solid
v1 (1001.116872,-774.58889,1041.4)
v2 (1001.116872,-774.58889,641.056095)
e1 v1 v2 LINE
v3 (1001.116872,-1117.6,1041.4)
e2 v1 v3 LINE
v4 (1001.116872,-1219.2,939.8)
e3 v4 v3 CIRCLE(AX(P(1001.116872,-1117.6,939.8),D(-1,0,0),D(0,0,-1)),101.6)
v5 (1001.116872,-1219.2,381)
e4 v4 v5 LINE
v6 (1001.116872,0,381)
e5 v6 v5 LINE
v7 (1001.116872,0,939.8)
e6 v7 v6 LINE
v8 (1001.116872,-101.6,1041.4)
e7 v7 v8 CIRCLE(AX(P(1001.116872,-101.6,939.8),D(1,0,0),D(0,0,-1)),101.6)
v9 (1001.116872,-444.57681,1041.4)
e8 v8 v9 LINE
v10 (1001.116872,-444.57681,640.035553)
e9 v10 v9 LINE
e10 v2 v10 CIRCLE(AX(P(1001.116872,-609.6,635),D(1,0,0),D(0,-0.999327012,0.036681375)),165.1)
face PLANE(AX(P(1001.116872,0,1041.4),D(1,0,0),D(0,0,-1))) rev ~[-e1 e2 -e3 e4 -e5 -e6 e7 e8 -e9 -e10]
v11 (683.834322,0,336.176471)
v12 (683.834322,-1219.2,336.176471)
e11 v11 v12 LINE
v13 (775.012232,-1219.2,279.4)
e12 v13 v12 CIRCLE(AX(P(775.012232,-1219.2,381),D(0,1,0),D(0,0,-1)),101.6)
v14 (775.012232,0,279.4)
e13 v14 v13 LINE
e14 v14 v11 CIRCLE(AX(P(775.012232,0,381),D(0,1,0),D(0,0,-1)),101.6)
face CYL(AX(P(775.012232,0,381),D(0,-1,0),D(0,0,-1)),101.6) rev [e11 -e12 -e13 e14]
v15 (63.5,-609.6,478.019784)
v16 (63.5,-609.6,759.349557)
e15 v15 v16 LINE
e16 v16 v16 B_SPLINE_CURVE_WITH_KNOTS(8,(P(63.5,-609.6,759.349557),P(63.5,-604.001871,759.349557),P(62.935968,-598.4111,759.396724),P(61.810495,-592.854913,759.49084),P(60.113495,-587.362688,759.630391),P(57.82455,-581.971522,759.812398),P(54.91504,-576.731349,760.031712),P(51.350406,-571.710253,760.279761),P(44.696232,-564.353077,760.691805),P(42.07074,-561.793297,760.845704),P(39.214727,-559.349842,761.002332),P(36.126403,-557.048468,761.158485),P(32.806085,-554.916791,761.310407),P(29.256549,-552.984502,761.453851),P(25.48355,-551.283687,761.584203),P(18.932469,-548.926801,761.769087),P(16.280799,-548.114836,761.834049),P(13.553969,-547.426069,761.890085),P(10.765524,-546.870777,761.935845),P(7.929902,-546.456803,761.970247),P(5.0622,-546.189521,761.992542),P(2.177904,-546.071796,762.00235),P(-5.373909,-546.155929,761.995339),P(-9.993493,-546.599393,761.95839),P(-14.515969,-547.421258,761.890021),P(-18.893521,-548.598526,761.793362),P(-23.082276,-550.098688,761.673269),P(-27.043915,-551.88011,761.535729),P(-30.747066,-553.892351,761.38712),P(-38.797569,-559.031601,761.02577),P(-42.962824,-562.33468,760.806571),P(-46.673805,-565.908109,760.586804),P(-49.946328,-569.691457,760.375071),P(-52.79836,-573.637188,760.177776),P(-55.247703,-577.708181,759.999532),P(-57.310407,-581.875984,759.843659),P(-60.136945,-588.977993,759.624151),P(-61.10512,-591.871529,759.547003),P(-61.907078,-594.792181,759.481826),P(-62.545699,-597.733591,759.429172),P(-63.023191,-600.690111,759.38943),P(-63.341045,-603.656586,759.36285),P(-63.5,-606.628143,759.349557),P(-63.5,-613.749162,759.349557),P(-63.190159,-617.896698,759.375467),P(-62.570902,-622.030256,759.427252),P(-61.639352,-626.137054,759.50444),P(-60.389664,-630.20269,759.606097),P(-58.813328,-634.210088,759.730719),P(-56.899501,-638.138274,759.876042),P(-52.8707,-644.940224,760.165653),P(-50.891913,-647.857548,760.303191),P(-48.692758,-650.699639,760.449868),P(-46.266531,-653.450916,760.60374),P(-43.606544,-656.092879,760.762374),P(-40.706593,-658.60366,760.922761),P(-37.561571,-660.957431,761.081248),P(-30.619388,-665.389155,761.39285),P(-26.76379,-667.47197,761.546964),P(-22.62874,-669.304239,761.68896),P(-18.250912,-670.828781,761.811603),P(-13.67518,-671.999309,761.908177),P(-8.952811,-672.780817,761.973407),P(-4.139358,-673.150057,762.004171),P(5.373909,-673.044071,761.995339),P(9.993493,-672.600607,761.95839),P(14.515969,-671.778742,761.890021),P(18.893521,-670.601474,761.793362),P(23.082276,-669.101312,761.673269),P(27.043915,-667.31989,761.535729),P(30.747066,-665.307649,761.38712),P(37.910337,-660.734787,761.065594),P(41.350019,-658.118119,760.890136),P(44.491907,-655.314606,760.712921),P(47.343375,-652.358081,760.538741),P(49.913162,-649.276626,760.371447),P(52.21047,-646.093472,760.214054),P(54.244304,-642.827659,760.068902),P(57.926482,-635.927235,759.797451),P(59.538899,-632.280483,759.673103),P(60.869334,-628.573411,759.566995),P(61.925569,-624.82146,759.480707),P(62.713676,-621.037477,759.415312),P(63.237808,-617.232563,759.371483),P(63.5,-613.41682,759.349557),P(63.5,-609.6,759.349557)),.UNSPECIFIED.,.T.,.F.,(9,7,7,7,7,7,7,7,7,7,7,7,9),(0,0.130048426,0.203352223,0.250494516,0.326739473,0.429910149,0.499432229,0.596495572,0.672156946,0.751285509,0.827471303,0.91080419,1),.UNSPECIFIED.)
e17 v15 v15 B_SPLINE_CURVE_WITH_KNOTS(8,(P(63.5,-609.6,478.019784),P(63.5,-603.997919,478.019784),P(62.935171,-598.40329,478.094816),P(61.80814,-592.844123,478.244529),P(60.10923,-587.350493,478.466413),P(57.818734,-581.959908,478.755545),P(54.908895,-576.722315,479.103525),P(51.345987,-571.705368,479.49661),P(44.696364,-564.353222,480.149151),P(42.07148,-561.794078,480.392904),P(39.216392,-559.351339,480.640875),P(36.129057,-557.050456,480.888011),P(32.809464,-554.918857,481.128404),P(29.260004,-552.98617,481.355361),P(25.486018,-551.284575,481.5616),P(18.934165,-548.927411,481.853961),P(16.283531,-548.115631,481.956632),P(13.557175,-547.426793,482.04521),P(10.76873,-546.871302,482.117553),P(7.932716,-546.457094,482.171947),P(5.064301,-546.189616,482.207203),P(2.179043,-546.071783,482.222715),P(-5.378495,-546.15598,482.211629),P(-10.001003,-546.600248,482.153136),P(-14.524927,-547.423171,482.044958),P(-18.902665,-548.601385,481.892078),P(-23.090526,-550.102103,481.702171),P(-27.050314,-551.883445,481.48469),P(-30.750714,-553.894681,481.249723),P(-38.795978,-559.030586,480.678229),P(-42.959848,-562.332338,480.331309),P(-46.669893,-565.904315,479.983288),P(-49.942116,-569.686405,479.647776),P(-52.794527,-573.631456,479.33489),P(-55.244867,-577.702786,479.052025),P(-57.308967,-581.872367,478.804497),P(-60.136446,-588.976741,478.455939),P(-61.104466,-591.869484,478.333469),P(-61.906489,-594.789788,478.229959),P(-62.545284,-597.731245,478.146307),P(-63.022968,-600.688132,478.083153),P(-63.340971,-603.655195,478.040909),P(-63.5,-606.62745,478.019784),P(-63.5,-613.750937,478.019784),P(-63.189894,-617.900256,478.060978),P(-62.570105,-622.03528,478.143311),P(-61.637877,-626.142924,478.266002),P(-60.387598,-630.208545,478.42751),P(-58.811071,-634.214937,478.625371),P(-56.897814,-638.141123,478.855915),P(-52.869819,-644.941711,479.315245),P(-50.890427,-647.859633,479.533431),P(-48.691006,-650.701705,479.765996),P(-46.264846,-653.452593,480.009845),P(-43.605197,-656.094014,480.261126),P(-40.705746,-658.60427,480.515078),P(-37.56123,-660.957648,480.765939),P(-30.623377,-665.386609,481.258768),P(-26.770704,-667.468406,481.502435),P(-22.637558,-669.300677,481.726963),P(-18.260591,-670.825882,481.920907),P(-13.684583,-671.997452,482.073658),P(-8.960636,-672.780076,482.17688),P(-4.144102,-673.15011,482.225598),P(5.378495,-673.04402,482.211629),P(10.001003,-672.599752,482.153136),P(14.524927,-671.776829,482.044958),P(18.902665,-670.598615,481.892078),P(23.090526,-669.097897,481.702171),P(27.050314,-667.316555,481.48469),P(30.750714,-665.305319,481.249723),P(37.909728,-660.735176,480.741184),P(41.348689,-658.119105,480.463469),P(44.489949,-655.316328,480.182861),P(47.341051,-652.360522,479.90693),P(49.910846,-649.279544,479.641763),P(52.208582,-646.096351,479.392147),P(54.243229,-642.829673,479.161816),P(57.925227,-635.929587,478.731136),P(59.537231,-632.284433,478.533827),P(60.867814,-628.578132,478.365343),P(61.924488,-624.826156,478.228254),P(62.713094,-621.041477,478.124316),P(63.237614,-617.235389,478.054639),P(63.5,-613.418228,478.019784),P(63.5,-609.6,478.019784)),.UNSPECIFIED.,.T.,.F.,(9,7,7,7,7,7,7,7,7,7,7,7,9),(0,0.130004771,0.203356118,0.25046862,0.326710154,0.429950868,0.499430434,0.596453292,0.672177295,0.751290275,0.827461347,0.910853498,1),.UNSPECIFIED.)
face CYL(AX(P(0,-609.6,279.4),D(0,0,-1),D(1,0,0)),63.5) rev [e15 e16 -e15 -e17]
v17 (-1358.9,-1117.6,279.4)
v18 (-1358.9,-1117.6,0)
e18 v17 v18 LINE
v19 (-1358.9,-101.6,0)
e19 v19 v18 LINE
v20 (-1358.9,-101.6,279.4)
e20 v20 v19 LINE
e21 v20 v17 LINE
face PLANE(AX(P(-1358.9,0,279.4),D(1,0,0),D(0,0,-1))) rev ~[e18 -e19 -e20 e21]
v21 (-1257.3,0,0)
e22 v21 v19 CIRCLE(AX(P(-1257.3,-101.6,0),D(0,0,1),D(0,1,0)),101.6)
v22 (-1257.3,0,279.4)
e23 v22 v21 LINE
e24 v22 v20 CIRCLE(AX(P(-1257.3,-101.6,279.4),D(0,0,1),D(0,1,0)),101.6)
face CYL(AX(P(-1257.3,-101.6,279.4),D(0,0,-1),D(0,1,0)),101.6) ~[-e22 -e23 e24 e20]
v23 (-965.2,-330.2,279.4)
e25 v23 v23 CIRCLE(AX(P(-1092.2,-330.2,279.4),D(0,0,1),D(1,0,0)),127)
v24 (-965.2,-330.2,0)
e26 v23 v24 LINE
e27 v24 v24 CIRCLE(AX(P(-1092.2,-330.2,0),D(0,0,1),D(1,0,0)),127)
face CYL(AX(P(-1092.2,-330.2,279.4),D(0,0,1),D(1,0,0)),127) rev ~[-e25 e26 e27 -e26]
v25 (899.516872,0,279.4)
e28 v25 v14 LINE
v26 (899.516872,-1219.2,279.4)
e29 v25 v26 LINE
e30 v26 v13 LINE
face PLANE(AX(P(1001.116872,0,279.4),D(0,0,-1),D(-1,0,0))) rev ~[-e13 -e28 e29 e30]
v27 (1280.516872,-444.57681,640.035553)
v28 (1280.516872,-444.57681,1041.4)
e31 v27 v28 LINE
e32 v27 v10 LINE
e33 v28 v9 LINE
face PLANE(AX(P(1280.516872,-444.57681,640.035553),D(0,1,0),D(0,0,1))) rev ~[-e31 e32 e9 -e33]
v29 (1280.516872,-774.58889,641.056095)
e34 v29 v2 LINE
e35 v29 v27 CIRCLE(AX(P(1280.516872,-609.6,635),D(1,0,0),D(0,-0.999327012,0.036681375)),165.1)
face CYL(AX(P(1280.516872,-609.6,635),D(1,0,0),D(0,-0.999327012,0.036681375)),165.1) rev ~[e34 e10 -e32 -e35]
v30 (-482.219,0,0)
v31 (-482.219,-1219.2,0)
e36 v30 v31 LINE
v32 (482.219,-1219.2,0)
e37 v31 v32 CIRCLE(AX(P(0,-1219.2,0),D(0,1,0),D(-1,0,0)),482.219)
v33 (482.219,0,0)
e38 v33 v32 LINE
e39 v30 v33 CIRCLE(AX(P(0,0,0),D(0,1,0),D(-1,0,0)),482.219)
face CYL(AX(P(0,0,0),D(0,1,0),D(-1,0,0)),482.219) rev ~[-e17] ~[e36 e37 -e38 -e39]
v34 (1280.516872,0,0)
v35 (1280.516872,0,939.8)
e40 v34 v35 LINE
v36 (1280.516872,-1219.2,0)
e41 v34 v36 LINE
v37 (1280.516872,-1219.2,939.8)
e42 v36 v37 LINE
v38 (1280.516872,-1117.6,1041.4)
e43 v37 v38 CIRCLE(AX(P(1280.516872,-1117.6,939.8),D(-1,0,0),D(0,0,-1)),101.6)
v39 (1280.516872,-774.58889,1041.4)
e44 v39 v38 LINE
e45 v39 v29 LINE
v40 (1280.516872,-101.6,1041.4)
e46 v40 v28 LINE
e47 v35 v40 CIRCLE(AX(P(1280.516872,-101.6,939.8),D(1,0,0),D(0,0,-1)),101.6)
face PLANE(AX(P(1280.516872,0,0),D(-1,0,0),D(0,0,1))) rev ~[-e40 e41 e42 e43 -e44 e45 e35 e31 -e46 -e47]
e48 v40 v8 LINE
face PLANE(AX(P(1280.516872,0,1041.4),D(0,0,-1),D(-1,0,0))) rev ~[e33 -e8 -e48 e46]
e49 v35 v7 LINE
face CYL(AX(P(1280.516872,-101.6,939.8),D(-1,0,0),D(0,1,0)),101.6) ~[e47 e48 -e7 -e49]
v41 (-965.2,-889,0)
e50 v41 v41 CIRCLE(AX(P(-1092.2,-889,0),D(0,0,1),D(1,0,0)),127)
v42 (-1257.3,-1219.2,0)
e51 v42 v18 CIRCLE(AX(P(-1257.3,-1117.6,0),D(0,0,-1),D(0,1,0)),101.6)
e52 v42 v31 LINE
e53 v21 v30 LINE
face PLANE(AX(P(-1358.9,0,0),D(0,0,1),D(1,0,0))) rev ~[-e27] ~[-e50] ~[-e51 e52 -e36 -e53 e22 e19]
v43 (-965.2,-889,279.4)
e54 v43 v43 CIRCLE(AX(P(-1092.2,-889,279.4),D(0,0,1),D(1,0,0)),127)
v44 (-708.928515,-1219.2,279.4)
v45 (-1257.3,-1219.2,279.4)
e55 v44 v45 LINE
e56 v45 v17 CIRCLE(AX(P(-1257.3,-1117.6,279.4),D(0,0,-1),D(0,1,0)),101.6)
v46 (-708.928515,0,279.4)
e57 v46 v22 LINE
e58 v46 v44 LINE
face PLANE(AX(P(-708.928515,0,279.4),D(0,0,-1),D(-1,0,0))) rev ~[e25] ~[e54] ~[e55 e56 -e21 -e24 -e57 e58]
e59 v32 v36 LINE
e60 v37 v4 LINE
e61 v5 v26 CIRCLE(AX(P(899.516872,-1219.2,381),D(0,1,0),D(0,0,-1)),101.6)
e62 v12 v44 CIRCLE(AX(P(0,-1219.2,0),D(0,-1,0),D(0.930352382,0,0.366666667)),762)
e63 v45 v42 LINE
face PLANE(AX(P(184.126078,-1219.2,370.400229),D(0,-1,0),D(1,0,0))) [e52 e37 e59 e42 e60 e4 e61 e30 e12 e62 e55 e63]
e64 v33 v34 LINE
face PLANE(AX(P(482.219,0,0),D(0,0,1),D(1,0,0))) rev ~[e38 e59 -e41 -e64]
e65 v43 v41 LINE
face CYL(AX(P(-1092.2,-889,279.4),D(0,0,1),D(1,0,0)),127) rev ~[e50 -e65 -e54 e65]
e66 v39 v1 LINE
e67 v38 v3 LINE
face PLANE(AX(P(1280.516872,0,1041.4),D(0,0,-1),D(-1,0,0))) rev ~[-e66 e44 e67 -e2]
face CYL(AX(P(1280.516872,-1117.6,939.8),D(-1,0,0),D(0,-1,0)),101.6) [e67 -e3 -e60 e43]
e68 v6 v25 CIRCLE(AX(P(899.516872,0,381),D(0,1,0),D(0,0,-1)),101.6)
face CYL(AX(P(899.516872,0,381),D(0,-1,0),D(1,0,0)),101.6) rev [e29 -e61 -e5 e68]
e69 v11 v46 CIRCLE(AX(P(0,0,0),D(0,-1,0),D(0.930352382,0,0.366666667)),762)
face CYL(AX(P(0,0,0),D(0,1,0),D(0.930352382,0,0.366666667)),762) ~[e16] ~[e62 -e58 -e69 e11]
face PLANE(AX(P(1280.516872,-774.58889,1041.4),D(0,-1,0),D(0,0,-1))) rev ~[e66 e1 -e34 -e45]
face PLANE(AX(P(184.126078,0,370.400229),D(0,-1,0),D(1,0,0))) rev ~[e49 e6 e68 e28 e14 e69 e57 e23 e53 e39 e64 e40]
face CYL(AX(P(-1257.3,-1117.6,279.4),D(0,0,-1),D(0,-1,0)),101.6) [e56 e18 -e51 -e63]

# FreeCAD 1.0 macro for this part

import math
import FreeCAD as App
import Part
import Sketcher
Q = App.Units.Quantity


def edges_at(feature, points):
    """Names of the edges that pass closest to the given points."""
    edges = feature.Shape.Edges
    near = lambda p: min(range(len(edges)), key=lambda i: edges[i].distToShape(Part.Vertex(*p))[0])
    return sorted({f"Edge{near(p) + 1}" for p in points})

doc = App.newDocument("Part")
body = doc.addObject("PartDesign::Body", "Body")

sketch1 = doc.addObject("Sketcher::SketchObject", "Sketch")
body.addObject(sketch1)
sketch1.AttachmentSupport = (doc.XZ_Plane, [""])
sketch1.MapMode = "FlatFace"
sketch1.addGeometry(Part.ArcOfCircle(Part.Circle(App.Vector(0, 0, 0), App.Vector(0, 0, 1), 482), math.radians(0), math.radians(180)), False)
sketch1.addGeometry(Part.LineSegment(App.Vector(482, 0, 0), App.Vector(1281, 0, 0)), False)
sketch1.addGeometry(Part.LineSegment(App.Vector(1281, 0, 0), App.Vector(1281, 1041, 0)), False)
sketch1.addGeometry(Part.LineSegment(App.Vector(1281, 1041, 0), App.Vector(1001, 1041, 0)), False)
sketch1.addGeometry(Part.LineSegment(App.Vector(1001, 1041, 0), App.Vector(1001, 279, 0)), False)
sketch1.addGeometry(Part.LineSegment(App.Vector(1001, 279, 0), App.Vector(709, 279, 0)), False)
sketch1.addGeometry(Part.ArcOfCircle(Part.Circle(App.Vector(0, 0, 0), App.Vector(0, 0, 1), 762), math.radians(22), math.radians(158)), False)
sketch1.addGeometry(Part.LineSegment(App.Vector(-709, 279, 0), App.Vector(-1359, 279, 0)), False)
sketch1.addGeometry(Part.LineSegment(App.Vector(-1359, 279, 0), App.Vector(-1359, 0, 0)), False)
sketch1.addGeometry(Part.LineSegment(App.Vector(-1359, 0, 0), App.Vector(-482, 0, 0)), False)
sketch1.addConstraint(Sketcher.Constraint("Coincident", 0, 1, 1, 1))
sketch1.addConstraint(Sketcher.Constraint("Coincident", 1, 2, 2, 1))
sketch1.addConstraint(Sketcher.Constraint("Coincident", 2, 2, 3, 1))
sketch1.addConstraint(Sketcher.Constraint("Coincident", 3, 2, 4, 1))
sketch1.addConstraint(Sketcher.Constraint("Coincident", 4, 2, 5, 1))
sketch1.addConstraint(Sketcher.Constraint("Coincident", 5, 2, 6, 1))
sketch1.addConstraint(Sketcher.Constraint("Coincident", 6, 2, 7, 1))
sketch1.addConstraint(Sketcher.Constraint("Coincident", 7, 2, 8, 1))
sketch1.addConstraint(Sketcher.Constraint("Coincident", 8, 2, 9, 1))
sketch1.addConstraint(Sketcher.Constraint("Coincident", 9, 2, 0, 2))
sketch1.addConstraint(Sketcher.Constraint("Horizontal", 1))
sketch1.addConstraint(Sketcher.Constraint("Vertical", 2))
sketch1.addConstraint(Sketcher.Constraint("Horizontal", 3))
sketch1.addConstraint(Sketcher.Constraint("Vertical", 4))
sketch1.addConstraint(Sketcher.Constraint("Horizontal", 5))
sketch1.addConstraint(Sketcher.Constraint("Horizontal", 7))
sketch1.addConstraint(Sketcher.Constraint("Vertical", 8))
sketch1.addConstraint(Sketcher.Constraint("Horizontal", 9))
sketch1.addConstraint(Sketcher.Constraint("Coincident", 0, 3, -1, 1))
sketch1.addConstraint(Sketcher.Constraint("Coincident", 6, 3, -1, 1))
sketch1.addConstraint(Sketcher.Constraint("PointOnObject", 1, 2, -1))
sketch1.addConstraint(Sketcher.Constraint("PointOnObject", 8, 2, -1))
sketch1.addConstraint(Sketcher.Constraint("Equal", 3, 8))
sketch1.addConstraint(Sketcher.Constraint("Radius", 6, Q("30 in")))
sketch1.addConstraint(Sketcher.Constraint("DistanceX", 3, 2, 3, 1, Q("11 in")))
sketch1.addConstraint(Sketcher.Constraint("DistanceY", 2, 1, 2, 2, Q("41 in")))
sketch1.addConstraint(Sketcher.Constraint("DistanceY", 4, 2, 4, 1, Q("30 in")))
sketch1.addConstraint(Sketcher.Constraint("Radius", 0, Q("18.985 in")))
sketch1.addConstraint(Sketcher.Constraint("DistanceX", 7, 2, -1, 1, Q("53.5 in")))
sketch1.addConstraint(Sketcher.Constraint("DistanceX", 1, 1, 1, 2, Q("798.297872 mm")))
pad1 = doc.addObject("PartDesign::Pad", "Pad")
body.addObject(pad1)
pad1.Profile = sketch1
pad1.Length = Q("48 in")

sketch2 = doc.addObject("Sketcher::SketchObject", "Sketch001")
body.addObject(sketch2)
sketch2.AttachmentSupport = (doc.YZ_Plane, [""])
sketch2.MapMode = "FlatFace"
sketch2.AttachmentOffset = App.Placement(App.Vector(0, 0, 1280.516872), App.Rotation())
sketch2.addGeometry(Part.LineSegment(App.Vector(-775, 1041, 0), App.Vector(-775, 641, 0)), False)
sketch2.addGeometry(Part.ArcOfCircle(Part.Circle(App.Vector(-610, 635, 0), App.Vector(0, 0, 1), 165), math.radians(178), math.radians(362)), False)
sketch2.addGeometry(Part.LineSegment(App.Vector(-445, 640, 0), App.Vector(-445, 1041, 0)), False)
sketch2.addGeometry(Part.LineSegment(App.Vector(-445, 1041, 0), App.Vector(-775, 1041, 0)), False)
sketch2.addConstraint(Sketcher.Constraint("Coincident", 0, 2, 1, 1))
sketch2.addConstraint(Sketcher.Constraint("Coincident", 1, 2, 2, 1))
sketch2.addConstraint(Sketcher.Constraint("Coincident", 2, 2, 3, 1))
sketch2.addConstraint(Sketcher.Constraint("Coincident", 3, 2, 0, 1))
sketch2.addConstraint(Sketcher.Constraint("Vertical", 0))
sketch2.addConstraint(Sketcher.Constraint("Vertical", 2))
sketch2.addConstraint(Sketcher.Constraint("Horizontal", 3))
sketch2.addConstraint(Sketcher.Constraint("Radius", 1, Q("6.5 in")))
sketch2.addConstraint(Sketcher.Constraint("DistanceX", 1, 3, -1, 1, Q("24 in")))
sketch2.addConstraint(Sketcher.Constraint("DistanceY", -1, 1, 1, 3, Q("25 in")))
sketch2.addConstraint(Sketcher.Constraint("DistanceY", -1, 1, 2, 2, Q("41 in")))
sketch2.addConstraint(Sketcher.Constraint("DistanceX", 3, 2, 3, 1, Q("330.01208 mm")))
sketch2.addConstraint(Sketcher.Constraint("DistanceY", 0, 2, 0, 1, Q("400.343905 mm")))
pocket1 = doc.addObject("PartDesign::Pocket", "Pocket")
body.addObject(pocket1)
pocket1.Profile = sketch2
pocket1.Length = 526.82718

sketch3 = doc.addObject("Sketcher::SketchObject", "Sketch002")
body.addObject(sketch3)
sketch3.AttachmentSupport = (doc.XY_Plane, [""])
sketch3.MapMode = "FlatFace"
sketch3.AttachmentOffset = App.Placement(App.Vector(0, 0, 11 * 25.4), App.Rotation())
sketch3.addGeometry(Part.Circle(App.Vector(-1092, -889, 0), App.Vector(0, 0, 1), 127), False)
sketch3.addGeometry(Part.Circle(App.Vector(-1092, -330, 0), App.Vector(0, 0, 1), 127), False)
sketch3.addGeometry(Part.Circle(App.Vector(0, -610, 0), App.Vector(0, 0, 1), 64), False)
sketch3.addConstraint(Sketcher.Constraint("Equal", 0, 1))
sketch3.addConstraint(Sketcher.Constraint("PointOnObject", 2, 3, -2))
sketch3.addConstraint(Sketcher.Constraint("Vertical", 0, 3, 1, 3))
sketch3.addConstraint(Sketcher.Constraint("Diameter", 0, Q("10 in")))
sketch3.addConstraint(Sketcher.Constraint("Diameter", 2, Q("5 in")))
sketch3.addConstraint(Sketcher.Constraint("DistanceX", 0, 3, -1, 1, Q("43 in")))
sketch3.addConstraint(Sketcher.Constraint("DistanceY", 0, 3, -1, 1, Q("35 in")))
sketch3.addConstraint(Sketcher.Constraint("DistanceY", 1, 3, -1, 1, Q("13 in")))
sketch3.addConstraint(Sketcher.Constraint("DistanceY", 2, 3, -1, 1, Q("24 in")))
pocket2 = doc.addObject("PartDesign::Pocket", "Pocket001")
body.addObject(pocket2)
pocket2.Profile = sketch3
pocket2.Type = "ThroughAll"
pocket2.Midplane = True
doc.recompute()

fillet = doc.addObject("PartDesign::Fillet", "Fillet")
body.addObject(fillet)
fillet.Base = (pocket2, edges_at(pocket2, [
    (1140.817, -1219.2, 1041.4),
    (1001.117, -609.6, 279.4),
    (-1358.9, -1219.2, 139.7),
    (1140.817, 0, 1041.4),
    (-1358.9, 0, 139.7),
    (708.929, -609.6, 279.4),
]))
fillet.Radius = Q("4 in")

doc.recompute()
